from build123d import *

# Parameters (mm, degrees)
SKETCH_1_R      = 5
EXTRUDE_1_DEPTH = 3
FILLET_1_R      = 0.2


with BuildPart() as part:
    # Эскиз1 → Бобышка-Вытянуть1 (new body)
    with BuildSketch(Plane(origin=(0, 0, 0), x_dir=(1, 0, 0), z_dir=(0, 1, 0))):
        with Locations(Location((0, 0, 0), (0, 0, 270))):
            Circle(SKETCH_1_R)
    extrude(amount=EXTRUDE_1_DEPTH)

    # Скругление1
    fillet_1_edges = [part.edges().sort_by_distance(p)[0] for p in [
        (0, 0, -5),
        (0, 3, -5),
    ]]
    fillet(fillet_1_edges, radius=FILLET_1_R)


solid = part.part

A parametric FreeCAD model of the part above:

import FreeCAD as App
import Part
import Sketcher

V = App.Vector
Q = App.Units.Quantity


def edges_at(feature, points):
    """Names of the edges that pass closest to the given points."""
    edges = feature.Shape.Edges
    near = lambda p: min(range(len(edges)), key=lambda i: edges[i].distToShape(Part.Vertex(*p))[0])
    return sorted({f"Edge{near(p) + 1}" for p in points})

doc = App.newDocument("Part")
body = doc.addObject("PartDesign::Body", "Body")

# Sketch on XZ plane
sketch1 = doc.addObject("Sketcher::SketchObject", "Sketch")
body.addObject(sketch1)
sketch1.AttachmentSupport = (doc.XZ_Plane, [""])
sketch1.MapMode = "FlatFace"
sketch1.addGeometry(Part.Circle(V(0, 0, 0), V(0, 0, 1), 5), False)
sketch1.addConstraint([
    Sketcher.Constraint("Coincident", 0, 3, -1, 1),
    Sketcher.Constraint("Diameter", 0, Q("10 mm")),
])
pad1 = doc.addObject("PartDesign::Pad", "Pad")
body.addObject(pad1)
pad1.Profile = sketch1
pad1.Length = 3
pad1.Reversed = True
doc.recompute()

fillet = doc.addObject("PartDesign::Fillet", "Fillet")
body.addObject(fillet)
fillet.Base = (pad1, edges_at(pad1, [(0, 0, -5), (0, 3, -5)]))
fillet.Radius = 0.2

doc.recompute()
